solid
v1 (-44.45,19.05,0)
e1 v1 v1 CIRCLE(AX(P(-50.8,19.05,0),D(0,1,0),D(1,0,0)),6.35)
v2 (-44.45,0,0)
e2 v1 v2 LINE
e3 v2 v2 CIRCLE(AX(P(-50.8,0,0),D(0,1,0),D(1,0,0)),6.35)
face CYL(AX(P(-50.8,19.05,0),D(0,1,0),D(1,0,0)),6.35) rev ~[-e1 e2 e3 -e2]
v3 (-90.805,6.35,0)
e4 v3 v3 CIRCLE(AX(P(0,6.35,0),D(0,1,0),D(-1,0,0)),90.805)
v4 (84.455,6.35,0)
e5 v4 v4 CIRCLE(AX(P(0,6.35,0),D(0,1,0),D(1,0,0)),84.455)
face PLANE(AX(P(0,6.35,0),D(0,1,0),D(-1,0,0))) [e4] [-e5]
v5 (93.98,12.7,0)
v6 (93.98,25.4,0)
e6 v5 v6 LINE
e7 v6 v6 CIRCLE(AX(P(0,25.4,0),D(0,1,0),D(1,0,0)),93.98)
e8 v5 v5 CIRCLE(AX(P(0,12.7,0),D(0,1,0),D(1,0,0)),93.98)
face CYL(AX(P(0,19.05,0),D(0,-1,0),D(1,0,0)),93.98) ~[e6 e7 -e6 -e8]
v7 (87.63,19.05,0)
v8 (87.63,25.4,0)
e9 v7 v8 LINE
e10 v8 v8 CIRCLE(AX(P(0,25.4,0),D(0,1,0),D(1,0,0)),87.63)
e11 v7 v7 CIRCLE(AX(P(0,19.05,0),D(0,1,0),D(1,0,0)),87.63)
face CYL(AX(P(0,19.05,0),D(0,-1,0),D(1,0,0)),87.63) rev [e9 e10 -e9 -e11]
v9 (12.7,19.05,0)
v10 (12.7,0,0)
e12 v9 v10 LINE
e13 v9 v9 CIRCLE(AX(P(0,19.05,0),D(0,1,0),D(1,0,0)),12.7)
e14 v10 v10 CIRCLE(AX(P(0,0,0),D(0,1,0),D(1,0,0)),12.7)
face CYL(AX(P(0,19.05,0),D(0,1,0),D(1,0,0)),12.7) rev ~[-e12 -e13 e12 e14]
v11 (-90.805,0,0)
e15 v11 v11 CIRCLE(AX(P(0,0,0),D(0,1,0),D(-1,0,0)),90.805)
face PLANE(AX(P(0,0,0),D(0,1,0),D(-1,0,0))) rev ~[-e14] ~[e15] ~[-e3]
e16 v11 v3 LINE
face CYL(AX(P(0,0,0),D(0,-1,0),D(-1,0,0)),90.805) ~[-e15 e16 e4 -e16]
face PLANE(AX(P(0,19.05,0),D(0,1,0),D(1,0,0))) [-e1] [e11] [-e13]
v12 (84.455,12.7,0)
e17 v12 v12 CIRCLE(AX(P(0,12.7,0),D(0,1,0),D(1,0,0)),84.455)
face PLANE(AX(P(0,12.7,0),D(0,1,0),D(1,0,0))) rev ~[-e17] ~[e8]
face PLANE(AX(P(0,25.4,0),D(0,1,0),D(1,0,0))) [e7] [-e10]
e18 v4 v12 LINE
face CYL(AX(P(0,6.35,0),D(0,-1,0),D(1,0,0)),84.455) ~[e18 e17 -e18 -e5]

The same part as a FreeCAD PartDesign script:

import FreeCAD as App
import Part
import Sketcher

V = App.Vector
Q = App.Units.Quantity

doc = App.newDocument("Part")
params = doc.addObject("Spreadsheet::Sheet", "Params")
for row, (alias, value) in enumerate([
    ("sketch1_diameter", "7.15 in"),
    ("pad1_length", "0.25 in"),
    ("sketch2_diameter", "6.65 in"),
    ("pad2_length", "0.25 in"),
    ("sketch3_diameter", "7.4 in"),
    ("pad3_length", "0.25 in"),
    ("sketch4_diameter", "1 in"),
    ("sketch4_diameter2", "0.5 in"),
    ("sketch5_diameter", "7.4 in"),
    ("sketch5_diameter2", "6.9 in"),
    ("pad4_length", "0.25 in"),
], start=1):
    params.set(f"A{row}", alias)
    params.set(f"B{row}", "=" + value)
    params.setAlias(f"B{row}", alias)

body = doc.addObject("PartDesign::Body", "Body")

# Sketch on XZ plane
sketch1 = body.newObject("Sketcher::SketchObject", "Sketch")
sketch1.AttachmentSupport = (doc.getObject("XZ_Plane"), [""])
sketch1.MapMode = "FlatFace"
sketch1.addGeometry(Part.Circle(V(0, 0, 0), V(0, 0, 1), 90.805), False)
sketch1.addConstraint([
    Sketcher.Constraint("Coincident", 0, 3, -1, 1),
    Sketcher.Constraint("Diameter", 0, Q("7.15 in")),
])
sketch1.setExpression("Constraints[1]", "Params.sketch1_diameter")
pad1 = body.newObject("PartDesign::Pad", "Pad")
pad1.Profile = sketch1
pad1.setExpression("Length", "Params.pad1_length")
pad1.Reversed = True

# Sketch on XZ plane
sketch2 = body.newObject("Sketcher::SketchObject", "Sketch001")
sketch2.AttachmentSupport = (doc.getObject("XZ_Plane"), [""])
sketch2.MapMode = "FlatFace"
sketch2.AttachmentOffset = App.Placement(V(0, 0, -0.25 * 25.4), App.Rotation())
sketch2.addGeometry(Part.Circle(V(0, 0, 0), V(0, 0, 1), 84.455), False)
sketch2.addConstraint([
    Sketcher.Constraint("Coincident", 0, 3, -1, 1),
    Sketcher.Constraint("Diameter", 0, Q("6.65 in")),
])
sketch2.setExpression("Constraints[1]", "Params.sketch2_diameter")
pad2 = body.newObject("PartDesign::Pad", "Pad001")
pad2.Profile = sketch2
pad2.setExpression("Length", "Params.pad2_length")
pad2.Reversed = True

# Sketch on XZ plane
sketch3 = body.newObject("Sketcher::SketchObject", "Sketch002")
sketch3.AttachmentSupport = (doc.getObject("XZ_Plane"), [""])
sketch3.MapMode = "FlatFace"
sketch3.AttachmentOffset = App.Placement(V(0, 0, -0.5 * 25.4), App.Rotation())
sketch3.addGeometry(Part.Circle(V(0, 0, 0), V(0, 0, 1), 93.98), False)
sketch3.addConstraint([
    Sketcher.Constraint("Coincident", 0, 3, -1, 1),
    Sketcher.Constraint("Diameter", 0, Q("7.4 in")),
])
sketch3.setExpression("Constraints[1]", "Params.sketch3_diameter")
pad3 = body.newObject("PartDesign::Pad", "Pad002")
pad3.Profile = sketch3
pad3.setExpression("Length", "Params.pad3_length")
pad3.Reversed = True

# Sketch on XZ plane
sketch4 = body.newObject("Sketcher::SketchObject", "Sketch003")
sketch4.AttachmentSupport = (doc.getObject("XZ_Plane"), [""])
sketch4.MapMode = "FlatFace"
sketch4.AttachmentOffset = App.Placement(V(0, 0, -0.75 * 25.4), App.Rotation())
sketch4.addGeometry([
    Part.Circle(V(0, 0, 0), V(0, 0, 1), 12.7),
    Part.Circle(V(-50.8, 0, 0), V(0, 0, 1), 6.35),
], False)
sketch4.addConstraint([
    Sketcher.Constraint("Coincident", 0, 3, -1, 1),
    Sketcher.Constraint("PointOnObject", 1, 3, -1),
    Sketcher.Constraint("Diameter", 0, Q("1 in")),
    Sketcher.Constraint("Diameter", 1, Q("0.5 in")),
    Sketcher.Constraint("DistanceX", 1, 3, -1, 1, Q("2 in")),
])
sketch4.setExpression("Constraints[2]", "Params.sketch4_diameter")
sketch4.setExpression("Constraints[3]", "Params.sketch4_diameter2")
pocket1 = body.newObject("PartDesign::Pocket", "Pocket")
pocket1.Profile = sketch4
pocket1.Type = "UpToFirst"
pocket1.Reversed = True

# Sketch on XZ plane
sketch5 = body.newObject("Sketcher::SketchObject", "Sketch004")
sketch5.AttachmentSupport = (doc.getObject("XZ_Plane"), [""])
sketch5.MapMode = "FlatFace"
sketch5.AttachmentOffset = App.Placement(V(0, 0, -0.75 * 25.4), App.Rotation())
sketch5.addGeometry([
    Part.Circle(V(0, 0, 0), V(0, 0, 1), 93.98),
    Part.Circle(V(0, 0, 0), V(0, 0, 1), 87.63),
], False)
sketch5.addConstraint([
    Sketcher.Constraint("Coincident", 0, 3, -1, 1),
    Sketcher.Constraint("Coincident", 1, 3, -1, 1),
    Sketcher.Constraint("Diameter", 0, Q("7.4 in")),
    Sketcher.Constraint("Diameter", 1, Q("6.9 in")),
])
sketch5.setExpression("Constraints[2]", "Params.sketch5_diameter")
sketch5.setExpression("Constraints[3]", "Params.sketch5_diameter2")
pad4 = body.newObject("PartDesign::Pad", "Pad003")
pad4.Profile = sketch5
pad4.setExpression("Length", "Params.pad4_length")
pad4.Reversed = True

doc.recompute()
